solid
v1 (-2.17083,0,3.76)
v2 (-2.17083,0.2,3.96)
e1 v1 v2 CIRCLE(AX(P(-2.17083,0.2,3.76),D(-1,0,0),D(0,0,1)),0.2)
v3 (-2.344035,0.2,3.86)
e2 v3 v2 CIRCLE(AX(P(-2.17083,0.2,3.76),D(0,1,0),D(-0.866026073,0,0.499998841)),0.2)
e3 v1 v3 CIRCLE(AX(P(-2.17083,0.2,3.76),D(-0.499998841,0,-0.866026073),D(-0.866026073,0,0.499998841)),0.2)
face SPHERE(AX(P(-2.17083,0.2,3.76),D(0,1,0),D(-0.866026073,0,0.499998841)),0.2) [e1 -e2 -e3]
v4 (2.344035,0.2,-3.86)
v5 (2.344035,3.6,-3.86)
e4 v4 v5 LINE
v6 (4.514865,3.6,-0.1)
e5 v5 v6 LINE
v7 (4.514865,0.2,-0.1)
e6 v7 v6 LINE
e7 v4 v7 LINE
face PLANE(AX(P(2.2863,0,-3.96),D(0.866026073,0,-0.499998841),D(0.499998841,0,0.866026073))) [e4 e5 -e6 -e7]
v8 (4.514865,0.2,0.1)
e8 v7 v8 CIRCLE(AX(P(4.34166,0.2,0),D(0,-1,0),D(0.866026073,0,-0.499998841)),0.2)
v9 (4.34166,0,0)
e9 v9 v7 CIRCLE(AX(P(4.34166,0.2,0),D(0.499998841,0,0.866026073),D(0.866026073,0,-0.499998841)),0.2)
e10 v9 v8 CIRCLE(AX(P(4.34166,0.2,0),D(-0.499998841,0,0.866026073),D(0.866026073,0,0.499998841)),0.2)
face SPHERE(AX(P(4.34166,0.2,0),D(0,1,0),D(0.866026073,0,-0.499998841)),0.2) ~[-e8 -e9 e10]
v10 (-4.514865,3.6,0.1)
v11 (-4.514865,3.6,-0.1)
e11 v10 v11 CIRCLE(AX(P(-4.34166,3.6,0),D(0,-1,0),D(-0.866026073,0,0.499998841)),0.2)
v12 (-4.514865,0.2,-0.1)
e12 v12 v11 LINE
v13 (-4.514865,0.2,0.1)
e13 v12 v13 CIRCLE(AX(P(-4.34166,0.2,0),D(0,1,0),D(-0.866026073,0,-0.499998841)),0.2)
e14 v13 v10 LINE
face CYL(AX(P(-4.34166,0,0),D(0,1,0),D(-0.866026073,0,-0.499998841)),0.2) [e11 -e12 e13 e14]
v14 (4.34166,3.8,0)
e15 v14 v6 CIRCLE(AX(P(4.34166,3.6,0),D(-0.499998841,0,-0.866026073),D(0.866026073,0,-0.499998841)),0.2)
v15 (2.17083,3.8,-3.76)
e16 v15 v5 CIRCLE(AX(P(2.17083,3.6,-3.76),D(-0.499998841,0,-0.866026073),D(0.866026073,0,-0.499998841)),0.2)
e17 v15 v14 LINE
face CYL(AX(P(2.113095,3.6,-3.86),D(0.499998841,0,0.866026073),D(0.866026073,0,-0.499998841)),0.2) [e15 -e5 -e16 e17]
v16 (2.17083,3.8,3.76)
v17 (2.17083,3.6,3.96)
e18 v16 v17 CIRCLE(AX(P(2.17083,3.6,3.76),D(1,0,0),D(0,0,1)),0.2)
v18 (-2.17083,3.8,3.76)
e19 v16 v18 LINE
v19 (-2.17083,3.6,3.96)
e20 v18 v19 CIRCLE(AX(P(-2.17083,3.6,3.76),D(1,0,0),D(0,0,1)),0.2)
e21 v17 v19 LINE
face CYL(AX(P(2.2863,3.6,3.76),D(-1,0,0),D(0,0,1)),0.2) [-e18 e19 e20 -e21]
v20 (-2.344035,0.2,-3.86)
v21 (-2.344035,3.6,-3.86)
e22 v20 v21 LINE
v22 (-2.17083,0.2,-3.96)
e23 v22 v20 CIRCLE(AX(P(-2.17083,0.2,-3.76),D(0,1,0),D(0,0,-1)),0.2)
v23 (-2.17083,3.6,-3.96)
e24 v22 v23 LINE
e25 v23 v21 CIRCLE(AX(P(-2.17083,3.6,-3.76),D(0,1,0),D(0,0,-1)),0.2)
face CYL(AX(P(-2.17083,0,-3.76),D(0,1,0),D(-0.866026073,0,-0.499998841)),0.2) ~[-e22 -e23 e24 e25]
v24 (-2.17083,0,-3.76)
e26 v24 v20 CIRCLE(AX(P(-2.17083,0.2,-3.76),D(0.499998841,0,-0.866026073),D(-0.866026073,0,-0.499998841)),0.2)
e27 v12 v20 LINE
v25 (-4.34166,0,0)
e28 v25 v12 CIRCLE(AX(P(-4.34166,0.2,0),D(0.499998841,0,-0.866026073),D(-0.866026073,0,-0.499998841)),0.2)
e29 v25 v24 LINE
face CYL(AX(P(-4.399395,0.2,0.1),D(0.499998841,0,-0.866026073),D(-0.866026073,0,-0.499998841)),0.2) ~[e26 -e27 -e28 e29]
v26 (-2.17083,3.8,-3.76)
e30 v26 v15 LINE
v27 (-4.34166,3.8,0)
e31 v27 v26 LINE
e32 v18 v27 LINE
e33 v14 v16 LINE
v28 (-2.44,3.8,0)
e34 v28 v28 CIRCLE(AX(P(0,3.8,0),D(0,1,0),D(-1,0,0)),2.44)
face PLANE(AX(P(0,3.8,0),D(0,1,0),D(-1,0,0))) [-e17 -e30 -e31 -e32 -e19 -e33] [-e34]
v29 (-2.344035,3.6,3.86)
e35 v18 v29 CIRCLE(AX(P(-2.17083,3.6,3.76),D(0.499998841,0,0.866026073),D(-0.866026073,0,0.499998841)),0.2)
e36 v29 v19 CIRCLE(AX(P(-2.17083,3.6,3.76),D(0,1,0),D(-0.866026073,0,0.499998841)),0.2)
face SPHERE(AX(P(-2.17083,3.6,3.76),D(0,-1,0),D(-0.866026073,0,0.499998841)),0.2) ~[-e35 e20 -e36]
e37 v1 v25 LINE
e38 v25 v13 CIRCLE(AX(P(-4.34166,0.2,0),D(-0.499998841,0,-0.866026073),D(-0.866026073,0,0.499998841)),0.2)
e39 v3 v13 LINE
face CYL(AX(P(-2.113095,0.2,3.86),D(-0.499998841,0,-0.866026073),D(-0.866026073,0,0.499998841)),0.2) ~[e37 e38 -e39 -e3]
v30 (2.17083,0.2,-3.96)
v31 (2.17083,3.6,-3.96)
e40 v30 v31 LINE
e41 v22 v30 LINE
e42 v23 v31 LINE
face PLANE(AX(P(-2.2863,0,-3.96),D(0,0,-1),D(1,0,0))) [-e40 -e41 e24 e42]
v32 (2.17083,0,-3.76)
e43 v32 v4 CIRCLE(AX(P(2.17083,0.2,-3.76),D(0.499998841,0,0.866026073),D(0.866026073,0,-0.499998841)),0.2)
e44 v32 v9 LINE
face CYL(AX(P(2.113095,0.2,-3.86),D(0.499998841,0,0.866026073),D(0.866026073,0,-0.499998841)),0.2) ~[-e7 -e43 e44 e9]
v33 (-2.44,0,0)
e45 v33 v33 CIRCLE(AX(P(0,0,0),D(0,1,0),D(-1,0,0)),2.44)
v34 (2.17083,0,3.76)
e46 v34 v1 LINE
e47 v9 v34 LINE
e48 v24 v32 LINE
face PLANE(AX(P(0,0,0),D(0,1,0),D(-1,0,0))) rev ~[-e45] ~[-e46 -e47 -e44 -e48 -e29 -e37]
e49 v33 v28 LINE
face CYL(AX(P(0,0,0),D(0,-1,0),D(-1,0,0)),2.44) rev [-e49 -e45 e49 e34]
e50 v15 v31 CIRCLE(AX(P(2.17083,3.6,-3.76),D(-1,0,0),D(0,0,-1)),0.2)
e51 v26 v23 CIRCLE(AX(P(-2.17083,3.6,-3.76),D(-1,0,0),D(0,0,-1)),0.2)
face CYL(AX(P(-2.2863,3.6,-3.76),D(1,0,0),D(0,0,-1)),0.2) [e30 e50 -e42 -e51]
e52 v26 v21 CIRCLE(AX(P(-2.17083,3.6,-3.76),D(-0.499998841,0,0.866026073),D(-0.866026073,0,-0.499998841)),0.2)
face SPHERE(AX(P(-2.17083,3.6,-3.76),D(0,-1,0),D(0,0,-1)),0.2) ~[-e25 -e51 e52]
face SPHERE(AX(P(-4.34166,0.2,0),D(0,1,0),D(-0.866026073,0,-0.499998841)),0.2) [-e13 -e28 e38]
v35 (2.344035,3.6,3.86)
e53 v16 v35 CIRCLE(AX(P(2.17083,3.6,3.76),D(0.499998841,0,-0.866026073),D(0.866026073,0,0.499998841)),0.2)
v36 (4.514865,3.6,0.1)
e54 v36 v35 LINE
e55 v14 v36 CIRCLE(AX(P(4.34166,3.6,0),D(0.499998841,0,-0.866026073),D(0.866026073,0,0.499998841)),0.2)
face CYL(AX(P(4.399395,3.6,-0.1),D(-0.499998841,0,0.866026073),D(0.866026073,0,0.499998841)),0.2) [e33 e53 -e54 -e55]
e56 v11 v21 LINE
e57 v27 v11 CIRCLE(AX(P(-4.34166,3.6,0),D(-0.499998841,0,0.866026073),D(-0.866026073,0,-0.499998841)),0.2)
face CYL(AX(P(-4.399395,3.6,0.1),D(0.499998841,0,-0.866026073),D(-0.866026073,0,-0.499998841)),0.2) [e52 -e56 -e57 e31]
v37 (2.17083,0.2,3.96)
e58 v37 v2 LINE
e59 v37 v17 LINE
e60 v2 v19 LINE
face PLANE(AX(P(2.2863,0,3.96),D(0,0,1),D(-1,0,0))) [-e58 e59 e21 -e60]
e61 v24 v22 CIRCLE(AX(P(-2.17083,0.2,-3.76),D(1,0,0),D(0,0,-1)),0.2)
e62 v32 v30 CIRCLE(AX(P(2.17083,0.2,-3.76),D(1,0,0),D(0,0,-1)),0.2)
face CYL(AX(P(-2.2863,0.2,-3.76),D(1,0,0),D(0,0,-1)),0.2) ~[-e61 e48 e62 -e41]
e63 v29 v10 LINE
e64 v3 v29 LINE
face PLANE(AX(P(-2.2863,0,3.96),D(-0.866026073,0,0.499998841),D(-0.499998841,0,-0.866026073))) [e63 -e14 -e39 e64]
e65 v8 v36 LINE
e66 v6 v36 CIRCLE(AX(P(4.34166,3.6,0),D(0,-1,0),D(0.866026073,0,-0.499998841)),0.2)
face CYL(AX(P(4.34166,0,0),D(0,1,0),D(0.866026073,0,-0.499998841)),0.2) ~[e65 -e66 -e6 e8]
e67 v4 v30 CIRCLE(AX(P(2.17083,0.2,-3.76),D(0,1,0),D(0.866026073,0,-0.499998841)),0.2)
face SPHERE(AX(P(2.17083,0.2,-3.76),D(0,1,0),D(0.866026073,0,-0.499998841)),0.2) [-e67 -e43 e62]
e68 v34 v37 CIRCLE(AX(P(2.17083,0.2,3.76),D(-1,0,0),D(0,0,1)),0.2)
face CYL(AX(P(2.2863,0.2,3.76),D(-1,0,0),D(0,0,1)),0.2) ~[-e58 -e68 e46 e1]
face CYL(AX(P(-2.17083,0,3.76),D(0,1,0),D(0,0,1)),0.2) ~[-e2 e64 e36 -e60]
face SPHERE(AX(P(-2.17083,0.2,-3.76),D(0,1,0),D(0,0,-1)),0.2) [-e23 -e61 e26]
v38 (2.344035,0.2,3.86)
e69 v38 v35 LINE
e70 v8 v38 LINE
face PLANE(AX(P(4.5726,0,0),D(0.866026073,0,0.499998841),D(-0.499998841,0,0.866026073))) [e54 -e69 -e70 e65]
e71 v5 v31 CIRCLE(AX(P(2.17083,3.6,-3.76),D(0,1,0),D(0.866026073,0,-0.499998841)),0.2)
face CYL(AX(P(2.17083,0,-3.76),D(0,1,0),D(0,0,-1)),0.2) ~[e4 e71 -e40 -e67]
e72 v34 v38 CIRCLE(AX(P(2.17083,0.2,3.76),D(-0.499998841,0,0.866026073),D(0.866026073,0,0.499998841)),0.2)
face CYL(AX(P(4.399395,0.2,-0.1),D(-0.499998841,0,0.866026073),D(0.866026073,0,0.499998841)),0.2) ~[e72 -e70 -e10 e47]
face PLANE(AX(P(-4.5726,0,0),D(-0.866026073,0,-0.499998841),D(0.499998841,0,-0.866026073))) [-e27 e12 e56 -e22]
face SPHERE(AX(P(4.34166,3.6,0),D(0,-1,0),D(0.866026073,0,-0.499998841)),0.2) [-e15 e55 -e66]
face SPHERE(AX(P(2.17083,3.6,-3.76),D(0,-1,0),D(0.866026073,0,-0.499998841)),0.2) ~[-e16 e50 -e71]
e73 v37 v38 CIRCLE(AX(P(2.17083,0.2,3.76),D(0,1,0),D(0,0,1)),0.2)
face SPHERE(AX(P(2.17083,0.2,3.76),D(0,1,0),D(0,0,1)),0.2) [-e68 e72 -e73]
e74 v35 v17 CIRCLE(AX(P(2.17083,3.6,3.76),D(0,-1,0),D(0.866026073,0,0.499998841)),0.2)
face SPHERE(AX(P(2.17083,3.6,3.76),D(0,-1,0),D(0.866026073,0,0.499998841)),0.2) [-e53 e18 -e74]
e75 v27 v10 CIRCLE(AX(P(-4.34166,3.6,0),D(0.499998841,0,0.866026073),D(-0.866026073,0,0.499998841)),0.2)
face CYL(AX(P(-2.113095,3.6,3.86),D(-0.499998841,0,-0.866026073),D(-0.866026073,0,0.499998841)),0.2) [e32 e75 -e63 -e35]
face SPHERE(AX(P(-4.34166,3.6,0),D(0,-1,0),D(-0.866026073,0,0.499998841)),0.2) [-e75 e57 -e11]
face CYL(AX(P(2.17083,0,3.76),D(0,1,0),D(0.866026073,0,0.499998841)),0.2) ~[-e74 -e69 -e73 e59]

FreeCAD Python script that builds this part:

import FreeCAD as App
import Part
import Sketcher
Q = App.Units.Quantity


def edges_at(feature, points):
    """Names of the edges that pass closest to the given points."""
    edges = feature.Shape.Edges
    near = lambda p: min(range(len(edges)), key=lambda i: edges[i].distToShape(Part.Vertex(*p))[0])
    return sorted({f"Edge{near(p) + 1}" for p in points})


def add_polygon(sketch, points):
    """Adds a closed chain of lines whose ends are joined by coincident constraints."""
    first, n = sketch.GeometryCount, len(points)
    for a, b in zip(points, points[1:] + points[:1]):
        sketch.addGeometry(Part.LineSegment(App.Vector(*a, 0), App.Vector(*b, 0)), False)
    for i in range(n):
        sketch.addConstraint(Sketcher.Constraint("Coincident", first + i, 2, first + (i + 1) % n, 1))

doc = App.newDocument("Part")
params = doc.addObject("Spreadsheet::Sheet", "Params")
for row, (alias, value) in enumerate([
    ("sketch1_diameter", "4.88 mm"),
    ("pad1_length", "3.8 mm"),
    ("fillet_radius", "0.2 mm"),
], start=1):
    params.set(f"A{row}", alias)
    params.set(f"B{row}", "=" + value)
    params.setAlias(f"B{row}", alias)

body = doc.addObject("PartDesign::Body", "Body")

# Sketch on XZ plane
sketch1 = doc.addObject("Sketcher::SketchObject", "Sketch")
body.addObject(sketch1)
sketch1.AttachmentSupport = (doc.XZ_Plane, [""])
sketch1.MapMode = "FlatFace"
add_polygon(sketch1, [(-2.2863, -3.96), (-4.5726, 0), (-2.2863, 3.96), (2.2863, 3.96), (4.5726, 0), (2.2863, -3.96)])  # lines 0-5
sketch1.addGeometry(Part.Circle(App.Vector(0, 0, 0), App.Vector(0, 0, 1), 2.44), False)  # 6
sketch1.addConstraint([
    Sketcher.Constraint("Horizontal", 2),
    Sketcher.Constraint("Horizontal", 5),
    Sketcher.Constraint("Coincident", 6, 3, -1, 1),
    Sketcher.Constraint("Symmetric", 0, 2, 3, 2, -1, 1),
    Sketcher.Constraint("Symmetric", 1, 2, 4, 2, -1, 1),
    Sketcher.Constraint("PointOnObject", 0, 2, -1),
    Sketcher.Constraint("Parallel", 0, 3),
    Sketcher.Constraint("Vertical", 2, 2, 4, 2),
    Sketcher.Constraint("Diameter", 6, Q("4.88 mm")),
    Sketcher.Constraint("Angle", 0, Q("120 deg")),
    Sketcher.Constraint("DistanceY", 4, 2, 2, 2, Q("7.92 mm")),
    Sketcher.Constraint("DistanceX", 2, 1, 2, 2, Q("4.5726 mm")),
])
sketch1.setExpression("Constraints[14]", "Params.sketch1_diameter")
pad1 = doc.addObject("PartDesign::Pad", "Pad")
body.addObject(pad1)
pad1.Profile = sketch1
pad1.setExpression("Length", "Params.pad1_length")
pad1.Reversed = True
doc.recompute()

fillet = doc.addObject("PartDesign::Fillet", "Fillet")
body.addObject(fillet)
fillet.Base = (pad1, edges_at(pad1, [
    (3.429, 3.8, 1.98),
    (0, 3.8, 3.96),
    (2.286, 1.9, 3.96),
    (0, 0, 3.96),
    (-2.286, 1.9, 3.96),
    (3.429, 0, 1.98),
    (4.573, 1.9, 0),
    (2.286, 1.9, -3.96),
    (3.429, 3.8, -1.98),
    (3.429, 0, -1.98),
    (-2.286, 1.9, -3.96),
    (0, 3.8, -3.96),
    (0, 0, -3.96),
    (-3.429, 3.8, 1.98),
    (-3.429, 3.8, -1.98),
    (-4.573, 1.9, 0),
    (-3.429, 0, -1.98),
    (-3.429, 0, 1.98),
]))
fillet.setExpression("Radius", "Params.fillet_radius")

doc.recompute()
